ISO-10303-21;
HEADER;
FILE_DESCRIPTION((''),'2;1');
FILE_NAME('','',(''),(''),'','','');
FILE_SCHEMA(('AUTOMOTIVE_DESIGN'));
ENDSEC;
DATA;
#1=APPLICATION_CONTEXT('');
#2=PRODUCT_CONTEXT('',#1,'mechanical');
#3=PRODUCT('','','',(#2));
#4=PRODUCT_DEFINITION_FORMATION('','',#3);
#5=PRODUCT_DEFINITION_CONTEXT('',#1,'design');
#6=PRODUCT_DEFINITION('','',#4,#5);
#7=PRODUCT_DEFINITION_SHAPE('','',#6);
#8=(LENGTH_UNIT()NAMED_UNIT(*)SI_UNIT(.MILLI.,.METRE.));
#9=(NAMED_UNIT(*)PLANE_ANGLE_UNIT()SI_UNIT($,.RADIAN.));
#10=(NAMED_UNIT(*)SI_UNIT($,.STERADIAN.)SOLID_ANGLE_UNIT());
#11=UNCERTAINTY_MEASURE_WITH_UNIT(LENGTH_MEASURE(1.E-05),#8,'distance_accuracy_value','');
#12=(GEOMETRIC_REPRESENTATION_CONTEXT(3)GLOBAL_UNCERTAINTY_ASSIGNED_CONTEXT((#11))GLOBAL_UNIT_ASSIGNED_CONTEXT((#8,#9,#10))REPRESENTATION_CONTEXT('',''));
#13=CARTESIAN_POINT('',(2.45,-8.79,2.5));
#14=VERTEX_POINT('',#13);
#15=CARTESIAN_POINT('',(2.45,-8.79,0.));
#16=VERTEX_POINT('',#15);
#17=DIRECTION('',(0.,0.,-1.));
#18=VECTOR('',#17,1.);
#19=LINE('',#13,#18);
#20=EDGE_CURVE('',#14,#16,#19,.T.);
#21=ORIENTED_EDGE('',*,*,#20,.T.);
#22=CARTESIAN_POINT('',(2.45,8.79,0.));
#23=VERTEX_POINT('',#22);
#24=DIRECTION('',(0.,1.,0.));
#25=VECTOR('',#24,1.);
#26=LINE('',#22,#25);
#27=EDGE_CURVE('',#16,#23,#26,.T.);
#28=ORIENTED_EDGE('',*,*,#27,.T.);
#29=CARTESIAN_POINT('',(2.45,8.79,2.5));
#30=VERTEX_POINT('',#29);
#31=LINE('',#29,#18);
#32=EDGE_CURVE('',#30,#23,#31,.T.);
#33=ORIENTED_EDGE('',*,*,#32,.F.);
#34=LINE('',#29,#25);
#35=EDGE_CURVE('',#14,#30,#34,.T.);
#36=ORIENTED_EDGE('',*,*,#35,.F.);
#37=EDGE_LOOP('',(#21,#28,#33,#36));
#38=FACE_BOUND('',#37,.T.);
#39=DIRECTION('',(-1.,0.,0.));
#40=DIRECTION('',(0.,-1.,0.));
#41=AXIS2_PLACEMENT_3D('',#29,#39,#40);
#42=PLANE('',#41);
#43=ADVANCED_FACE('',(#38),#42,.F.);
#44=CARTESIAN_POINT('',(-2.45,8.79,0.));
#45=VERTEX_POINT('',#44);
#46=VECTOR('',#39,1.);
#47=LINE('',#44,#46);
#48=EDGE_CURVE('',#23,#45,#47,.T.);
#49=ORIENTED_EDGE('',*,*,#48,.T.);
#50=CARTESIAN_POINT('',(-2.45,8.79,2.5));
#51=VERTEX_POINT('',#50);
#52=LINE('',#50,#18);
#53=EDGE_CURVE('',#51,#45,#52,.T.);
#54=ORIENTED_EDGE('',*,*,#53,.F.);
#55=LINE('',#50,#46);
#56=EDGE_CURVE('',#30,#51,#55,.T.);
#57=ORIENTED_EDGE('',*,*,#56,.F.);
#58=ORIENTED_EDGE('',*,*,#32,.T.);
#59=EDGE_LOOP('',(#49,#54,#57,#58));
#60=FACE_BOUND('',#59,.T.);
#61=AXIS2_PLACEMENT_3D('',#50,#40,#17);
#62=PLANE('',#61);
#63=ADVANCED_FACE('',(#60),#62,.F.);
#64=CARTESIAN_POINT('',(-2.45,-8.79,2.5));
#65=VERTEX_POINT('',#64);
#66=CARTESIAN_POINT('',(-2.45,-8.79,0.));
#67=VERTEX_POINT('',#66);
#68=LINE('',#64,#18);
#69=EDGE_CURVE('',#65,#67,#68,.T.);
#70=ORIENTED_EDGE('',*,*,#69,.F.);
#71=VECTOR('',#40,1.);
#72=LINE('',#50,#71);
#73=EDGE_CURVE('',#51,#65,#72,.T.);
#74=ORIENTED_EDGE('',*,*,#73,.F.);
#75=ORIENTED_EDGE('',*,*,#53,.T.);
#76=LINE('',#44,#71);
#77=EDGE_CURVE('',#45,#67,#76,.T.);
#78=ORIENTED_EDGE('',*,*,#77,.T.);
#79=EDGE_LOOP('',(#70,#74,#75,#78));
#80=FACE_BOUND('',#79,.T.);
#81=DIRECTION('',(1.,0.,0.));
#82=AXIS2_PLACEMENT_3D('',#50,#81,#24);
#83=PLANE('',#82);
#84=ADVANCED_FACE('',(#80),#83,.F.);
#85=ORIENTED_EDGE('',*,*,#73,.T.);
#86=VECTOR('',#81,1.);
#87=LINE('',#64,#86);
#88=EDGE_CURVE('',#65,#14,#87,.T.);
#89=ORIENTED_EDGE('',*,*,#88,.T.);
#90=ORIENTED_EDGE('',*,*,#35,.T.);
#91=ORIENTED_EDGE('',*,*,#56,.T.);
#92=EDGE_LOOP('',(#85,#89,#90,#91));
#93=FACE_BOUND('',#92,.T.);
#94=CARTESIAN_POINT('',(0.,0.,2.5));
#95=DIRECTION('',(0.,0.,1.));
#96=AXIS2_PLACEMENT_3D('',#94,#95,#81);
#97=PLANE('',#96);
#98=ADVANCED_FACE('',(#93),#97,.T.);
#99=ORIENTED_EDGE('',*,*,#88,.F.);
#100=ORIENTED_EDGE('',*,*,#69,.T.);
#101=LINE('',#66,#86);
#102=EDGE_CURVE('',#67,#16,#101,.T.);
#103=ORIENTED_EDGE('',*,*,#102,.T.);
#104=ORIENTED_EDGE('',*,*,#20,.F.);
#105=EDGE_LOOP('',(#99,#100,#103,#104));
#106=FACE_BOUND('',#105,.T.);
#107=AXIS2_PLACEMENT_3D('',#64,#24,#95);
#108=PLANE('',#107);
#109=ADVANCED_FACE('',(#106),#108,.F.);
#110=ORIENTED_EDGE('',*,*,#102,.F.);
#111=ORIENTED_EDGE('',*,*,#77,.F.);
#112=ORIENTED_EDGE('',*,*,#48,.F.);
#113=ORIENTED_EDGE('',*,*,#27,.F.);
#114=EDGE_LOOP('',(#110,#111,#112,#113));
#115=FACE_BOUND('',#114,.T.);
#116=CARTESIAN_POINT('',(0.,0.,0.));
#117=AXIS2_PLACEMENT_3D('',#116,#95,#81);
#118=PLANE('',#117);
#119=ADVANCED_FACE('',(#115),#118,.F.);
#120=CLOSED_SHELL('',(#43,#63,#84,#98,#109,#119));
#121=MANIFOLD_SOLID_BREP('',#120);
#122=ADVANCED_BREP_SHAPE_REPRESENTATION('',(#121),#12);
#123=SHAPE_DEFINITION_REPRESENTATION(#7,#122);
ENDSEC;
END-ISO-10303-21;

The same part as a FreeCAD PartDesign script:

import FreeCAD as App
import Part
import Sketcher
from FreeCAD import Vector

doc = App.newDocument("Part")
body = doc.addObject("PartDesign::Body", "Body")

# Sketch on XY plane
sketch1 = doc.addObject("Sketcher::SketchObject", "Sketch")
body.addObject(sketch1)
sketch1.AttachmentSupport = (doc.XY_Plane, [""])
sketch1.MapMode = "FlatFace"
sketch1.addGeometry([
    Part.LineSegment(Vector(-2.5, 8.8, 0), Vector(-2.5, -8.8, 0)),
    Part.LineSegment(Vector(-2.5, -8.8, 0), Vector(2.5, -8.8, 0)),
    Part.LineSegment(Vector(2.5, -8.8, 0), Vector(2.5, 8.8, 0)),
    Part.LineSegment(Vector(2.5, 8.8, 0), Vector(-2.5, 8.8, 0)),
], False)
sketch1.addConstraint([
    Sketcher.Constraint("Coincident", 0, 2, 1, 1),
    Sketcher.Constraint("Coincident", 1, 2, 2, 1),
    Sketcher.Constraint("Coincident", 2, 2, 3, 1),
    Sketcher.Constraint("Coincident", 3, 2, 0, 1),
    Sketcher.Constraint("Vertical", 0),
    Sketcher.Constraint("Horizontal", 1),
    Sketcher.Constraint("Vertical", 2),
    Sketcher.Constraint("Horizontal", 3),
    Sketcher.Constraint("Symmetric", 0, 2, 2, 2, -1, 1),
    Sketcher.Constraint("DistanceX", 1, 1, 1, 2, 4.9),
    Sketcher.Constraint("DistanceY", 0, 2, 0, 1, 17.58),
])
pad1 = doc.addObject("PartDesign::Pad", "Pad")
body.addObject(pad1)
pad1.Profile = sketch1
pad1.Length = 2.5

doc.recompute()
